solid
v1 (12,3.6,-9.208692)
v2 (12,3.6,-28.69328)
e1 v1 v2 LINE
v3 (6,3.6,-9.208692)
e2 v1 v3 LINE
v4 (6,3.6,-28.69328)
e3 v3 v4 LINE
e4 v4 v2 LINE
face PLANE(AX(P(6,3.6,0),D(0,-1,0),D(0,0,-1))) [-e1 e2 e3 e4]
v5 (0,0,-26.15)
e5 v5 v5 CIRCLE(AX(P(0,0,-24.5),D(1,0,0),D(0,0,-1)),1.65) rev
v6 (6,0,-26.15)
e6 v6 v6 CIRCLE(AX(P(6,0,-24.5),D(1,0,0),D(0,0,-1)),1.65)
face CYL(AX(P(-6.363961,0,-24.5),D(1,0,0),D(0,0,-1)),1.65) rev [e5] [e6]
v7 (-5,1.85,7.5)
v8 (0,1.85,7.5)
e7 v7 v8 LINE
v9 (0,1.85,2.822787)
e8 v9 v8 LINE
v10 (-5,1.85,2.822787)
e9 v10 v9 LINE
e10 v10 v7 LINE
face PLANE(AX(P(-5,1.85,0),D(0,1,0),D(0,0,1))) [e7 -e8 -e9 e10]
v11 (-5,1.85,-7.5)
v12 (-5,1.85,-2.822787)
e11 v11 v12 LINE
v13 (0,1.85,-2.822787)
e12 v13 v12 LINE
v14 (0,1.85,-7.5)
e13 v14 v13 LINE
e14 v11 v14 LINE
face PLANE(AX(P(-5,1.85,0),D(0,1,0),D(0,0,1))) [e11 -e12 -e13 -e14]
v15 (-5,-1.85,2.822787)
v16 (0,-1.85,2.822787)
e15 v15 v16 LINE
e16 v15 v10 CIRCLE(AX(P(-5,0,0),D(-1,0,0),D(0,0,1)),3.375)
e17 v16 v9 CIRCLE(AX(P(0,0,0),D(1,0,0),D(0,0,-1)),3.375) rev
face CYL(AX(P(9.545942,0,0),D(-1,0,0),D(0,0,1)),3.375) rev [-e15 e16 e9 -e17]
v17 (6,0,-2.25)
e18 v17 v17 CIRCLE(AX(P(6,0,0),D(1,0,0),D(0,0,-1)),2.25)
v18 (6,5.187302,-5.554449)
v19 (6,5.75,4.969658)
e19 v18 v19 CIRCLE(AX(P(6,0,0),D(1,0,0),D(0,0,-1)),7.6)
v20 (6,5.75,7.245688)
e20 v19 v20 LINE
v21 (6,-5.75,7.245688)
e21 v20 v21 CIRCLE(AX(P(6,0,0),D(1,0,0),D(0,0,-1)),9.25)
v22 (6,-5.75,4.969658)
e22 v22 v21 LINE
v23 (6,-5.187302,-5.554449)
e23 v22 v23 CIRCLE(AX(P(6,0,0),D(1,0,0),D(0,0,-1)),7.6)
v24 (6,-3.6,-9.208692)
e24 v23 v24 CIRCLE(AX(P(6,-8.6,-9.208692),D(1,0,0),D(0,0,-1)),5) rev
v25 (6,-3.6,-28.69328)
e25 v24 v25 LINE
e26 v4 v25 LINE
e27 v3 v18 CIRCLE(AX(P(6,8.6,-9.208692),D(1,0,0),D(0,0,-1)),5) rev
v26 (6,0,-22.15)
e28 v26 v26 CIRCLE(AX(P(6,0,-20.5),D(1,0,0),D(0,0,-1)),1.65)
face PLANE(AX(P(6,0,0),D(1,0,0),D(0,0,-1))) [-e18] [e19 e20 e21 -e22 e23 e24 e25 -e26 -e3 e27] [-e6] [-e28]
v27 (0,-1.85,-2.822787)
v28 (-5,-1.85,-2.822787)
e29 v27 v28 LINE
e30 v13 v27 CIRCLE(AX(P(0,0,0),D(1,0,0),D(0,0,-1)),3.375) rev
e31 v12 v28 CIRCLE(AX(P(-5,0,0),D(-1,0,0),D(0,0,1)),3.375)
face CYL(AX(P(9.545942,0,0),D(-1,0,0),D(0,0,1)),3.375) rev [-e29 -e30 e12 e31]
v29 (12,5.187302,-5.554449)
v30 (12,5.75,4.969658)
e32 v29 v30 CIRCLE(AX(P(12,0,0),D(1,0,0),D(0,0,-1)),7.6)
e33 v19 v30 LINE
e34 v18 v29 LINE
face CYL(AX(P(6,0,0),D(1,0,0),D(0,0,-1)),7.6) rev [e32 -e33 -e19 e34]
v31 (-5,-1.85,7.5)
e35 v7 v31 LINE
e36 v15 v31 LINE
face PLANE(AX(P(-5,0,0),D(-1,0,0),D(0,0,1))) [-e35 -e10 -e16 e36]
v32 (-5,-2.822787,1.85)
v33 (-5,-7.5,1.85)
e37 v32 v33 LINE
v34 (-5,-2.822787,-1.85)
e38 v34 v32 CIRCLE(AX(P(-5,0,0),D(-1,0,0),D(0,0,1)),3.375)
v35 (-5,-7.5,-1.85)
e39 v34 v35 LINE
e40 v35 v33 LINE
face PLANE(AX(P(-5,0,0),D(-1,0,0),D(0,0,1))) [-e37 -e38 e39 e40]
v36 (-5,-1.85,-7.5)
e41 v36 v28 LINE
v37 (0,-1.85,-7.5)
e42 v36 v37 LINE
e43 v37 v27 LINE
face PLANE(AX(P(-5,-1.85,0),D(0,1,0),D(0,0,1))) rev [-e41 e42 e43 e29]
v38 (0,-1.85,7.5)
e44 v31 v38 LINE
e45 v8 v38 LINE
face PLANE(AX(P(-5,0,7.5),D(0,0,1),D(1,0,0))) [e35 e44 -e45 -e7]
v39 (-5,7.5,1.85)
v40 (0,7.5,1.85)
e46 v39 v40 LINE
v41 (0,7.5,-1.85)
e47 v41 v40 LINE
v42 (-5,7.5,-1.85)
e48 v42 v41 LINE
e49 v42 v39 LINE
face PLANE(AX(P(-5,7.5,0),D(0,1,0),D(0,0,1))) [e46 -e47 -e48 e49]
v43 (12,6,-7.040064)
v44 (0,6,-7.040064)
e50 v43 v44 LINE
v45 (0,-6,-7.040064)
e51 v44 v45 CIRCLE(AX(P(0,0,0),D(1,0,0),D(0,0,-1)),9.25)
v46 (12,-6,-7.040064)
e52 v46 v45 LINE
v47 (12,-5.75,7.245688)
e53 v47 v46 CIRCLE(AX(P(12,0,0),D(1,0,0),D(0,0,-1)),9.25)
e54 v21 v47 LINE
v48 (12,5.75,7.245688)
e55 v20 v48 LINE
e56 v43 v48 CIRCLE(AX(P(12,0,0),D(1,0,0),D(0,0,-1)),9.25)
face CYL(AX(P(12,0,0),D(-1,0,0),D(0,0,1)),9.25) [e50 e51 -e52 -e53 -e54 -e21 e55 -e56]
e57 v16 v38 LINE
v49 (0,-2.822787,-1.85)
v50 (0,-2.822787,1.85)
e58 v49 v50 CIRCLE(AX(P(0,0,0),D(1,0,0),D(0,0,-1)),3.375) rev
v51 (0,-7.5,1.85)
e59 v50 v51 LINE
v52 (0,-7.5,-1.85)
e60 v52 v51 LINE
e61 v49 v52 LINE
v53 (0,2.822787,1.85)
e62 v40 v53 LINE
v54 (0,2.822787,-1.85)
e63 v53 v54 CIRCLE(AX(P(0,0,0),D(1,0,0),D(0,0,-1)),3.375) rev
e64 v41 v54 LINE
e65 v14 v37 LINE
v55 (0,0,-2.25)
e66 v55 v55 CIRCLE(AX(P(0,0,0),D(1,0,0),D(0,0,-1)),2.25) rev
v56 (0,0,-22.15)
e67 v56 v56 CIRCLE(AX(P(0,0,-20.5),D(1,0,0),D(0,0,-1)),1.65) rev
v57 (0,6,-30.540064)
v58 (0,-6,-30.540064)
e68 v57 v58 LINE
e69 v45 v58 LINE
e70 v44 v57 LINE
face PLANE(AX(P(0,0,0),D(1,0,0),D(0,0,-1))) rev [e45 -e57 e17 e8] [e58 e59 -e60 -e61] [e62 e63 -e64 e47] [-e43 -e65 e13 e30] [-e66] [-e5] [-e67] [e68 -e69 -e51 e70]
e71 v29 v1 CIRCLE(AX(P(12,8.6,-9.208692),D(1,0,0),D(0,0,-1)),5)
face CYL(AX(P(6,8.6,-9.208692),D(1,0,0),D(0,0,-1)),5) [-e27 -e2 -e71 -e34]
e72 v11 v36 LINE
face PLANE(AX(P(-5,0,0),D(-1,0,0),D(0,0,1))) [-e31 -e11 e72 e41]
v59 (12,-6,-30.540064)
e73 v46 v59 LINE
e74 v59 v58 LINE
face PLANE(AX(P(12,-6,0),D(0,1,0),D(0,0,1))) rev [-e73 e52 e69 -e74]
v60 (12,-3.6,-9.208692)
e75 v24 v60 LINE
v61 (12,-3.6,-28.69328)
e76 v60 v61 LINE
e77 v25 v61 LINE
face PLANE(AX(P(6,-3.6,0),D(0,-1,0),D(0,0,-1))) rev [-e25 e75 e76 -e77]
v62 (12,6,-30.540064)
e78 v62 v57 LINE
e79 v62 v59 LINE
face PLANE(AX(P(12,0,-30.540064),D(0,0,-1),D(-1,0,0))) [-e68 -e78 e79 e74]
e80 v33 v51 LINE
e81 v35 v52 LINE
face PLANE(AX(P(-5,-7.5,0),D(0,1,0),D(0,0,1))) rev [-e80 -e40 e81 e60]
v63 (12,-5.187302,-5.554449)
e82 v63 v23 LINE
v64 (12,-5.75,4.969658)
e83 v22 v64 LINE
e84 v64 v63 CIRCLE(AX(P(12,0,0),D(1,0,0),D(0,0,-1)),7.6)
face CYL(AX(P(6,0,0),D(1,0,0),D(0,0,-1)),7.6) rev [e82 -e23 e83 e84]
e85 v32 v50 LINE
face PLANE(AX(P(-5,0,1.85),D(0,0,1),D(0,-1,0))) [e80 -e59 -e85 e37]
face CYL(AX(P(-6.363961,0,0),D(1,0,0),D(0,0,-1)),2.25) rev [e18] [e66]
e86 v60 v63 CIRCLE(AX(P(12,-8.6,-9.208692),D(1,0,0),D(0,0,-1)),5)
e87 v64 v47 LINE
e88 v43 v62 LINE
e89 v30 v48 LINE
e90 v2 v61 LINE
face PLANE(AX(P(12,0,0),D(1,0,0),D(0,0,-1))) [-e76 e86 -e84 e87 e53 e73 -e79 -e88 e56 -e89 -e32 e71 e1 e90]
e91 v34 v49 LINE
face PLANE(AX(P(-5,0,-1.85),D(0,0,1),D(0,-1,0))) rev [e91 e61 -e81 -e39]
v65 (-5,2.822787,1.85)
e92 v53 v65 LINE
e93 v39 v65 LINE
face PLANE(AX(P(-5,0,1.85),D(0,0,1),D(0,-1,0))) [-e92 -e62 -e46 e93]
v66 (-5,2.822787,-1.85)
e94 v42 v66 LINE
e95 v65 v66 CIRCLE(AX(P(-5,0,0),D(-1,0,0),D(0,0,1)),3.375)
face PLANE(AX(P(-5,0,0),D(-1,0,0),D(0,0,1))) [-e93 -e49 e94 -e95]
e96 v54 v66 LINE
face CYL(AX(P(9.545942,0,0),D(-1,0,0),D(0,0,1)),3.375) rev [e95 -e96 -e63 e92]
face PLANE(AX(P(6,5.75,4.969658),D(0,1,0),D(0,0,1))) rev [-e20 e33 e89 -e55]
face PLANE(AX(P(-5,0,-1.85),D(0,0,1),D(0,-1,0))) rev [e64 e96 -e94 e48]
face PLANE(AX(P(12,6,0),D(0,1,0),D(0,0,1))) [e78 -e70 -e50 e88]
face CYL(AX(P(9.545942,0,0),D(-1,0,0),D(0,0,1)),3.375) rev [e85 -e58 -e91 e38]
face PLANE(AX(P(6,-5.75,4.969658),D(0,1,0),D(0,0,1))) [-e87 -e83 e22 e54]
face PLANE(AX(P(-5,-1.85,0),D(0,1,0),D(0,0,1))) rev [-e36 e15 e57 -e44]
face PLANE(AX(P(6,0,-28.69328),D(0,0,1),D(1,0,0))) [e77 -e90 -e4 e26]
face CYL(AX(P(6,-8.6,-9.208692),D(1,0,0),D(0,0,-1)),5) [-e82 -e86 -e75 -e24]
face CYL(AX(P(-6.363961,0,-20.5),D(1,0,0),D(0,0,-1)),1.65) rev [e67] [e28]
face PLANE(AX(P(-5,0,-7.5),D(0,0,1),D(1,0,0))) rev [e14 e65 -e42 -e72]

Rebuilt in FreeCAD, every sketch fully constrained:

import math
import FreeCAD as App
import Part
import Sketcher


def edges_at(feature, points):
    """Names of the edges that pass closest to the given points."""
    edges = feature.Shape.Edges
    near = lambda p: min(range(len(edges)), key=lambda i: edges[i].distToShape(Part.Vertex(*p))[0])
    return sorted({f"Edge{near(p) + 1}" for p in points})


def add_polygon(sketch, points):
    """Adds a closed chain of lines whose ends are joined by coincident constraints."""
    first, n = sketch.GeometryCount, len(points)
    for a, b in zip(points, points[1:] + points[:1]):
        sketch.addGeometry(Part.LineSegment(App.Vector(*a, 0), App.Vector(*b, 0)), False)
    for i in range(n):
        sketch.addConstraint(Sketcher.Constraint("Coincident", first + i, 2, first + (i + 1) % n, 1))

doc = App.newDocument("Part")
body = doc.addObject("PartDesign::Body", "Body")

# Sketch on YZ plane
sketch1 = body.newObject("Sketcher::SketchObject", "Sketch")
sketch1.AttachmentSupport = (doc.getObject("YZ_Plane"), [""])
sketch1.MapMode = "FlatFace"
sketch1.addGeometry(Part.LineSegment(App.Vector(6, -30.540064, 0), App.Vector(6, -7.040064, 0)), False)
sketch1.addGeometry(Part.ArcOfCircle(Part.Circle(App.Vector(0, 0, 0), App.Vector(0, 0, 1), 9.25), math.radians(-49.560207), math.radians(229.560207)), False)
sketch1.addGeometry(Part.LineSegment(App.Vector(-6, -7.040064, 0), App.Vector(-6, -30.540064, 0)), False)
sketch1.addGeometry(Part.LineSegment(App.Vector(-6, -30.540064, 0), App.Vector(6, -30.540064, 0)), False)
sketch1.addConstraint(Sketcher.Constraint("Coincident", 0, 2, 1, 1))
sketch1.addConstraint(Sketcher.Constraint("Coincident", 1, 2, 2, 1))
sketch1.addConstraint(Sketcher.Constraint("Coincident", 2, 2, 3, 1))
sketch1.addConstraint(Sketcher.Constraint("Coincident", 3, 2, 0, 1))
sketch1.addConstraint(Sketcher.Constraint("Vertical", 0))
sketch1.addConstraint(Sketcher.Constraint("Vertical", 2))
sketch1.addConstraint(Sketcher.Constraint("Horizontal", 3))
sketch1.addConstraint(Sketcher.Constraint("Coincident", 1, 3, -1, 1))
sketch1.addConstraint(Sketcher.Constraint("Horizontal", 0, 2, 1, 2))
sketch1.addConstraint(Sketcher.Constraint("DistanceX", 3, 1, 3, 2, 12.0))
sketch1.addConstraint(Sketcher.Constraint("Radius", 1, 9.25))
sketch1.addConstraint(Sketcher.Constraint("DistanceY", 0, 1, 0, 2, 23.5))
pad1 = body.newObject("PartDesign::Pad", "Pad")
pad1.Profile = sketch1
pad1.Length = 12

# Sketch on YZ plane
sketch2 = body.newObject("Sketcher::SketchObject", "Sketch001")
sketch2.AttachmentSupport = (doc.getObject("YZ_Plane"), [""])
sketch2.MapMode = "FlatFace"
sketch2.AttachmentOffset = App.Placement(App.Vector(0, 0, 12), App.Rotation())
sketch2.addGeometry(Part.ArcOfCircle(Part.Circle(App.Vector(0, 0, 0), App.Vector(0, 0, 1), 7.6), math.radians(139.163527), math.radians(241.726286)), False)
sketch2.addGeometry(Part.LineSegment(App.Vector(-3.6, -6.69328, 0), App.Vector(-3.6, -28.69328, 0)), False)
sketch2.addGeometry(Part.LineSegment(App.Vector(-3.6, -28.69328, 0), App.Vector(3.6, -28.69328, 0)), False)
sketch2.addGeometry(Part.LineSegment(App.Vector(3.6, -28.69328, 0), App.Vector(3.6, -6.69328, 0)), False)
sketch2.addGeometry(Part.ArcOfCircle(Part.Circle(App.Vector(0, 0, 0), App.Vector(0, 0, 1), 7.6), math.radians(-61.726286), math.radians(40.836473)), False)
sketch2.addGeometry(Part.LineSegment(App.Vector(5.75, 4.969658, 0), App.Vector(5.75, 11.059892, 0)), False)
sketch2.addGeometry(Part.LineSegment(App.Vector(5.75, 11.059892, 0), App.Vector(-5.75, 11.059892, 0)), False)
sketch2.addGeometry(Part.LineSegment(App.Vector(-5.75, 11.059892, 0), App.Vector(-5.75, 4.969658, 0)), False)
sketch2.addConstraint(Sketcher.Constraint("Coincident", 0, 2, 1, 1))
sketch2.addConstraint(Sketcher.Constraint("Coincident", 1, 2, 2, 1))
sketch2.addConstraint(Sketcher.Constraint("Coincident", 2, 2, 3, 1))
sketch2.addConstraint(Sketcher.Constraint("Coincident", 3, 2, 4, 1))
sketch2.addConstraint(Sketcher.Constraint("Coincident", 4, 2, 5, 1))
sketch2.addConstraint(Sketcher.Constraint("Coincident", 5, 2, 6, 1))
sketch2.addConstraint(Sketcher.Constraint("Coincident", 6, 2, 7, 1))
sketch2.addConstraint(Sketcher.Constraint("Coincident", 7, 2, 0, 1))
sketch2.addConstraint(Sketcher.Constraint("Vertical", 1))
sketch2.addConstraint(Sketcher.Constraint("Horizontal", 2))
sketch2.addConstraint(Sketcher.Constraint("Vertical", 3))
sketch2.addConstraint(Sketcher.Constraint("Vertical", 5))
sketch2.addConstraint(Sketcher.Constraint("Horizontal", 6))
sketch2.addConstraint(Sketcher.Constraint("Vertical", 7))
sketch2.addConstraint(Sketcher.Constraint("Coincident", 0, 3, -1, 1))
sketch2.addConstraint(Sketcher.Constraint("Coincident", 4, 3, -1, 1))
sketch2.addConstraint(Sketcher.Constraint("Equal", 0, 4))
sketch2.addConstraint(Sketcher.Constraint("Horizontal", 0, 2, 3, 2))
sketch2.addConstraint(Sketcher.Constraint("Horizontal", 4, 2, 7, 2))
sketch2.addConstraint(Sketcher.Constraint("Radius", 0, 7.6))
sketch2.addConstraint(Sketcher.Constraint("DistanceY", 1, 2, 1, 1, 22.0))
sketch2.addConstraint(Sketcher.Constraint("DistanceX", 2, 1, 2, 2, 7.2))
sketch2.addConstraint(Sketcher.Constraint("DistanceX", 6, 2, 6, 1, 11.5))
sketch2.addConstraint(Sketcher.Constraint("DistanceY", 5, 1, 5, 2, 6.090234))
pocket1 = body.newObject("PartDesign::Pocket", "Pocket")
pocket1.Profile = sketch2
pocket1.Length = 6
doc.recompute()

fillet = body.newObject("PartDesign::Fillet", "Fillet")
fillet.Base = (pocket1, edges_at(pocket1, [(9, 3.6, -6.693), (9, -3.6, -6.693)]))
fillet.Radius = 5

# Sketch on YZ plane
sketch3 = body.newObject("Sketcher::SketchObject", "Sketch002")
sketch3.AttachmentSupport = (doc.getObject("YZ_Plane"), [""])
sketch3.MapMode = "FlatFace"
sketch3.AttachmentOffset = App.Placement(App.Vector(0, 0, 6), App.Rotation())
sketch3.addGeometry(Part.Circle(App.Vector(0, 0, 0), App.Vector(0, 0, 1), 2.25), False)
sketch3.addGeometry(Part.Circle(App.Vector(0, -20.5, 0), App.Vector(0, 0, 1), 1.65), False)
sketch3.addGeometry(Part.Circle(App.Vector(0, -24.5, 0), App.Vector(0, 0, 1), 1.65), False)
sketch3.addConstraint(Sketcher.Constraint("Coincident", 0, 3, -1, 1))
sketch3.addConstraint(Sketcher.Constraint("Equal", 1, 2))
sketch3.addConstraint(Sketcher.Constraint("PointOnObject", 1, 3, -2))
sketch3.addConstraint(Sketcher.Constraint("PointOnObject", 2, 3, -2))
sketch3.addConstraint(Sketcher.Constraint("Diameter", 0, 4.5))
sketch3.addConstraint(Sketcher.Constraint("Diameter", 1, 3.3))
sketch3.addConstraint(Sketcher.Constraint("DistanceY", 2, 3, 1, 3, 4.0))
sketch3.addConstraint(Sketcher.Constraint("DistanceY", 1, 3, -1, 1, 20.5))
pocket2 = body.newObject("PartDesign::Pocket", "Pocket001")
pocket2.Profile = sketch3
pocket2.Length = 6

# Sketch on YZ plane
sketch4 = body.newObject("Sketcher::SketchObject", "Sketch003")
sketch4.AttachmentSupport = (doc.getObject("YZ_Plane"), [""])
sketch4.MapMode = "FlatFace"
add_polygon(sketch4, [(-1.85, -7.5), (-1.85, -1.85), (-7.5, -1.85), (-7.5, 1.85), (-1.85, 1.85), (-1.85, 7.5), (1.85, 7.5), (1.85, 1.85), (7.5, 1.85), (7.5, -1.85), (1.85, -1.85), (1.85, -7.5)])  # lines 0-11
sketch4.addGeometry(Part.ArcOfCircle(Part.Circle(App.Vector(0, 0, 0), App.Vector(0, 0, 1), 2.25), math.radians(145.307869), math.radians(214.692131)), False)  # 12
sketch4.addGeometry(Part.ArcOfCircle(Part.Circle(App.Vector(0, 0, 0), App.Vector(0, 0, 1), 2.25), math.radians(-145.30787), math.radians(-124.69213)), False)  # 13
sketch4.addGeometry(Part.ArcOfCircle(Part.Circle(App.Vector(0, 0, 0), App.Vector(0, 0, 1), 2.25), math.radians(-124.692131), math.radians(-55.307869)), False)  # 14
sketch4.addGeometry(Part.ArcOfCircle(Part.Circle(App.Vector(0, 0, 0), App.Vector(0, 0, 1), 2.25), math.radians(-55.30787), math.radians(-34.69213)), False)  # 15
sketch4.addGeometry(Part.ArcOfCircle(Part.Circle(App.Vector(0, 0, 0), App.Vector(0, 0, 1), 2.25), math.radians(-34.692131), math.radians(34.692131)), False)  # 16
sketch4.addGeometry(Part.ArcOfCircle(Part.Circle(App.Vector(0, 0, 0), App.Vector(0, 0, 1), 2.25), math.radians(34.69213), math.radians(55.30787)), False)  # 17
sketch4.addGeometry(Part.ArcOfCircle(Part.Circle(App.Vector(0, 0, 0), App.Vector(0, 0, 1), 2.25), math.radians(55.307869), math.radians(90)), False)  # 18
sketch4.addGeometry(Part.ArcOfCircle(Part.Circle(App.Vector(0, 0, 0), App.Vector(0, 0, 1), 2.25), math.radians(90), math.radians(124.692131)), False)  # 19
sketch4.addGeometry(Part.ArcOfCircle(Part.Circle(App.Vector(0, 0, 0), App.Vector(0, 0, 1), 2.25), math.radians(124.69213), math.radians(145.30787)), False)  # 20
sketch4.addConstraint(Sketcher.Constraint("Tangent", 12, 2, 13, 1))
sketch4.addConstraint(Sketcher.Constraint("Tangent", 13, 2, 14, 1))
sketch4.addConstraint(Sketcher.Constraint("Tangent", 14, 2, 15, 1))
sketch4.addConstraint(Sketcher.Constraint("Tangent", 15, 2, 16, 1))
sketch4.addConstraint(Sketcher.Constraint("Tangent", 16, 2, 17, 1))
sketch4.addConstraint(Sketcher.Constraint("Tangent", 17, 2, 18, 1))
sketch4.addConstraint(Sketcher.Constraint("Tangent", 18, 2, 19, 1))
sketch4.addConstraint(Sketcher.Constraint("Tangent", 19, 2, 20, 1))
sketch4.addConstraint(Sketcher.Constraint("Tangent", 20, 2, 12, 1))
sketch4.addConstraint(Sketcher.Constraint("Vertical", 0))
sketch4.addConstraint(Sketcher.Constraint("Horizontal", 1))
sketch4.addConstraint(Sketcher.Constraint("Vertical", 2))
sketch4.addConstraint(Sketcher.Constraint("Horizontal", 3))
sketch4.addConstraint(Sketcher.Constraint("Vertical", 4))
sketch4.addConstraint(Sketcher.Constraint("Horizontal", 5))
sketch4.addConstraint(Sketcher.Constraint("Vertical", 6))
sketch4.addConstraint(Sketcher.Constraint("Horizontal", 7))
sketch4.addConstraint(Sketcher.Constraint("Vertical", 8))
sketch4.addConstraint(Sketcher.Constraint("Horizontal", 9))
sketch4.addConstraint(Sketcher.Constraint("Vertical", 10))
sketch4.addConstraint(Sketcher.Constraint("Horizontal", 11))
sketch4.addConstraint(Sketcher.Constraint("Coincident", 12, 3, -1, 1))
sketch4.addConstraint(Sketcher.Constraint("Coincident", 14, 3, -1, 1))
sketch4.addConstraint(Sketcher.Constraint("Coincident", 16, 3, -1, 1))
sketch4.addConstraint(Sketcher.Constraint("Coincident", 18, 3, -1, 1))
sketch4.addConstraint(Sketcher.Constraint("Symmetric", 0, 2, 6, 2, -1, 1))
sketch4.addConstraint(Sketcher.Constraint("Symmetric", 2, 2, 8, 2, -1, 1))
sketch4.addConstraint(Sketcher.Constraint("Symmetric", 4, 2, 10, 2, -1, 1))
sketch4.addConstraint(Sketcher.Constraint("Symmetric", 3, 2, 6, 2, -2))
sketch4.addConstraint(Sketcher.Constraint("PointOnObject", 18, 2, -2))
sketch4.addConstraint(Sketcher.Constraint("Horizontal", 9, 2, 13, 2))
sketch4.addConstraint(Sketcher.Constraint("Horizontal", 13, 2, 14, 2))
sketch4.addConstraint(Sketcher.Constraint("Horizontal", 12, 2, 15, 2))
sketch4.addConstraint(Sketcher.Constraint("Horizontal", 7, 2, 17, 2))
sketch4.addConstraint(Sketcher.Constraint("Horizontal", 17, 2, 19, 2))
sketch4.addConstraint(Sketcher.Constraint("Horizontal", 16, 2, 20, 2))
sketch4.addConstraint(Sketcher.Constraint("Vertical", 11, 2, 12, 2))
sketch4.addConstraint(Sketcher.Constraint("Vertical", 15, 2, 16, 2))
sketch4.addConstraint(Sketcher.Constraint("Equal", 9, 0))
sketch4.addConstraint(Sketcher.Constraint("Equal", 11, 2))
sketch4.addConstraint(Sketcher.Constraint("Radius", 12, 2.25))
sketch4.addConstraint(Sketcher.Constraint("DistanceX", 5, 1, 5, 2, 3.7))
sketch4.addConstraint(Sketcher.Constraint("DistanceX", 1, 2, 1, 1, 5.65))
pad2 = body.newObject("PartDesign::Pad", "Pad001")
pad2.Profile = sketch4
pad2.Length = 5
pad2.Reversed = True

# Sketch on YZ plane
sketch5 = body.newObject("Sketcher::SketchObject", "Sketch004")
sketch5.AttachmentSupport = (doc.getObject("YZ_Plane"), [""])
sketch5.MapMode = "FlatFace"
sketch5.AttachmentOffset = App.Placement(App.Vector(0, 0, -5), App.Rotation())
sketch5.addGeometry(Part.Circle(App.Vector(0, 0, 0), App.Vector(0, 0, 1), 3.375), False)
sketch5.addConstraint(Sketcher.Constraint("Coincident", 0, 3, -1, 1))
sketch5.addConstraint(Sketcher.Constraint("Diameter", 0, 6.75))
pocket3 = body.newObject("PartDesign::Pocket", "Pocket002")
pocket3.Profile = sketch5
pocket3.Length = 5
pocket3.Reversed = True

doc.recompute()
